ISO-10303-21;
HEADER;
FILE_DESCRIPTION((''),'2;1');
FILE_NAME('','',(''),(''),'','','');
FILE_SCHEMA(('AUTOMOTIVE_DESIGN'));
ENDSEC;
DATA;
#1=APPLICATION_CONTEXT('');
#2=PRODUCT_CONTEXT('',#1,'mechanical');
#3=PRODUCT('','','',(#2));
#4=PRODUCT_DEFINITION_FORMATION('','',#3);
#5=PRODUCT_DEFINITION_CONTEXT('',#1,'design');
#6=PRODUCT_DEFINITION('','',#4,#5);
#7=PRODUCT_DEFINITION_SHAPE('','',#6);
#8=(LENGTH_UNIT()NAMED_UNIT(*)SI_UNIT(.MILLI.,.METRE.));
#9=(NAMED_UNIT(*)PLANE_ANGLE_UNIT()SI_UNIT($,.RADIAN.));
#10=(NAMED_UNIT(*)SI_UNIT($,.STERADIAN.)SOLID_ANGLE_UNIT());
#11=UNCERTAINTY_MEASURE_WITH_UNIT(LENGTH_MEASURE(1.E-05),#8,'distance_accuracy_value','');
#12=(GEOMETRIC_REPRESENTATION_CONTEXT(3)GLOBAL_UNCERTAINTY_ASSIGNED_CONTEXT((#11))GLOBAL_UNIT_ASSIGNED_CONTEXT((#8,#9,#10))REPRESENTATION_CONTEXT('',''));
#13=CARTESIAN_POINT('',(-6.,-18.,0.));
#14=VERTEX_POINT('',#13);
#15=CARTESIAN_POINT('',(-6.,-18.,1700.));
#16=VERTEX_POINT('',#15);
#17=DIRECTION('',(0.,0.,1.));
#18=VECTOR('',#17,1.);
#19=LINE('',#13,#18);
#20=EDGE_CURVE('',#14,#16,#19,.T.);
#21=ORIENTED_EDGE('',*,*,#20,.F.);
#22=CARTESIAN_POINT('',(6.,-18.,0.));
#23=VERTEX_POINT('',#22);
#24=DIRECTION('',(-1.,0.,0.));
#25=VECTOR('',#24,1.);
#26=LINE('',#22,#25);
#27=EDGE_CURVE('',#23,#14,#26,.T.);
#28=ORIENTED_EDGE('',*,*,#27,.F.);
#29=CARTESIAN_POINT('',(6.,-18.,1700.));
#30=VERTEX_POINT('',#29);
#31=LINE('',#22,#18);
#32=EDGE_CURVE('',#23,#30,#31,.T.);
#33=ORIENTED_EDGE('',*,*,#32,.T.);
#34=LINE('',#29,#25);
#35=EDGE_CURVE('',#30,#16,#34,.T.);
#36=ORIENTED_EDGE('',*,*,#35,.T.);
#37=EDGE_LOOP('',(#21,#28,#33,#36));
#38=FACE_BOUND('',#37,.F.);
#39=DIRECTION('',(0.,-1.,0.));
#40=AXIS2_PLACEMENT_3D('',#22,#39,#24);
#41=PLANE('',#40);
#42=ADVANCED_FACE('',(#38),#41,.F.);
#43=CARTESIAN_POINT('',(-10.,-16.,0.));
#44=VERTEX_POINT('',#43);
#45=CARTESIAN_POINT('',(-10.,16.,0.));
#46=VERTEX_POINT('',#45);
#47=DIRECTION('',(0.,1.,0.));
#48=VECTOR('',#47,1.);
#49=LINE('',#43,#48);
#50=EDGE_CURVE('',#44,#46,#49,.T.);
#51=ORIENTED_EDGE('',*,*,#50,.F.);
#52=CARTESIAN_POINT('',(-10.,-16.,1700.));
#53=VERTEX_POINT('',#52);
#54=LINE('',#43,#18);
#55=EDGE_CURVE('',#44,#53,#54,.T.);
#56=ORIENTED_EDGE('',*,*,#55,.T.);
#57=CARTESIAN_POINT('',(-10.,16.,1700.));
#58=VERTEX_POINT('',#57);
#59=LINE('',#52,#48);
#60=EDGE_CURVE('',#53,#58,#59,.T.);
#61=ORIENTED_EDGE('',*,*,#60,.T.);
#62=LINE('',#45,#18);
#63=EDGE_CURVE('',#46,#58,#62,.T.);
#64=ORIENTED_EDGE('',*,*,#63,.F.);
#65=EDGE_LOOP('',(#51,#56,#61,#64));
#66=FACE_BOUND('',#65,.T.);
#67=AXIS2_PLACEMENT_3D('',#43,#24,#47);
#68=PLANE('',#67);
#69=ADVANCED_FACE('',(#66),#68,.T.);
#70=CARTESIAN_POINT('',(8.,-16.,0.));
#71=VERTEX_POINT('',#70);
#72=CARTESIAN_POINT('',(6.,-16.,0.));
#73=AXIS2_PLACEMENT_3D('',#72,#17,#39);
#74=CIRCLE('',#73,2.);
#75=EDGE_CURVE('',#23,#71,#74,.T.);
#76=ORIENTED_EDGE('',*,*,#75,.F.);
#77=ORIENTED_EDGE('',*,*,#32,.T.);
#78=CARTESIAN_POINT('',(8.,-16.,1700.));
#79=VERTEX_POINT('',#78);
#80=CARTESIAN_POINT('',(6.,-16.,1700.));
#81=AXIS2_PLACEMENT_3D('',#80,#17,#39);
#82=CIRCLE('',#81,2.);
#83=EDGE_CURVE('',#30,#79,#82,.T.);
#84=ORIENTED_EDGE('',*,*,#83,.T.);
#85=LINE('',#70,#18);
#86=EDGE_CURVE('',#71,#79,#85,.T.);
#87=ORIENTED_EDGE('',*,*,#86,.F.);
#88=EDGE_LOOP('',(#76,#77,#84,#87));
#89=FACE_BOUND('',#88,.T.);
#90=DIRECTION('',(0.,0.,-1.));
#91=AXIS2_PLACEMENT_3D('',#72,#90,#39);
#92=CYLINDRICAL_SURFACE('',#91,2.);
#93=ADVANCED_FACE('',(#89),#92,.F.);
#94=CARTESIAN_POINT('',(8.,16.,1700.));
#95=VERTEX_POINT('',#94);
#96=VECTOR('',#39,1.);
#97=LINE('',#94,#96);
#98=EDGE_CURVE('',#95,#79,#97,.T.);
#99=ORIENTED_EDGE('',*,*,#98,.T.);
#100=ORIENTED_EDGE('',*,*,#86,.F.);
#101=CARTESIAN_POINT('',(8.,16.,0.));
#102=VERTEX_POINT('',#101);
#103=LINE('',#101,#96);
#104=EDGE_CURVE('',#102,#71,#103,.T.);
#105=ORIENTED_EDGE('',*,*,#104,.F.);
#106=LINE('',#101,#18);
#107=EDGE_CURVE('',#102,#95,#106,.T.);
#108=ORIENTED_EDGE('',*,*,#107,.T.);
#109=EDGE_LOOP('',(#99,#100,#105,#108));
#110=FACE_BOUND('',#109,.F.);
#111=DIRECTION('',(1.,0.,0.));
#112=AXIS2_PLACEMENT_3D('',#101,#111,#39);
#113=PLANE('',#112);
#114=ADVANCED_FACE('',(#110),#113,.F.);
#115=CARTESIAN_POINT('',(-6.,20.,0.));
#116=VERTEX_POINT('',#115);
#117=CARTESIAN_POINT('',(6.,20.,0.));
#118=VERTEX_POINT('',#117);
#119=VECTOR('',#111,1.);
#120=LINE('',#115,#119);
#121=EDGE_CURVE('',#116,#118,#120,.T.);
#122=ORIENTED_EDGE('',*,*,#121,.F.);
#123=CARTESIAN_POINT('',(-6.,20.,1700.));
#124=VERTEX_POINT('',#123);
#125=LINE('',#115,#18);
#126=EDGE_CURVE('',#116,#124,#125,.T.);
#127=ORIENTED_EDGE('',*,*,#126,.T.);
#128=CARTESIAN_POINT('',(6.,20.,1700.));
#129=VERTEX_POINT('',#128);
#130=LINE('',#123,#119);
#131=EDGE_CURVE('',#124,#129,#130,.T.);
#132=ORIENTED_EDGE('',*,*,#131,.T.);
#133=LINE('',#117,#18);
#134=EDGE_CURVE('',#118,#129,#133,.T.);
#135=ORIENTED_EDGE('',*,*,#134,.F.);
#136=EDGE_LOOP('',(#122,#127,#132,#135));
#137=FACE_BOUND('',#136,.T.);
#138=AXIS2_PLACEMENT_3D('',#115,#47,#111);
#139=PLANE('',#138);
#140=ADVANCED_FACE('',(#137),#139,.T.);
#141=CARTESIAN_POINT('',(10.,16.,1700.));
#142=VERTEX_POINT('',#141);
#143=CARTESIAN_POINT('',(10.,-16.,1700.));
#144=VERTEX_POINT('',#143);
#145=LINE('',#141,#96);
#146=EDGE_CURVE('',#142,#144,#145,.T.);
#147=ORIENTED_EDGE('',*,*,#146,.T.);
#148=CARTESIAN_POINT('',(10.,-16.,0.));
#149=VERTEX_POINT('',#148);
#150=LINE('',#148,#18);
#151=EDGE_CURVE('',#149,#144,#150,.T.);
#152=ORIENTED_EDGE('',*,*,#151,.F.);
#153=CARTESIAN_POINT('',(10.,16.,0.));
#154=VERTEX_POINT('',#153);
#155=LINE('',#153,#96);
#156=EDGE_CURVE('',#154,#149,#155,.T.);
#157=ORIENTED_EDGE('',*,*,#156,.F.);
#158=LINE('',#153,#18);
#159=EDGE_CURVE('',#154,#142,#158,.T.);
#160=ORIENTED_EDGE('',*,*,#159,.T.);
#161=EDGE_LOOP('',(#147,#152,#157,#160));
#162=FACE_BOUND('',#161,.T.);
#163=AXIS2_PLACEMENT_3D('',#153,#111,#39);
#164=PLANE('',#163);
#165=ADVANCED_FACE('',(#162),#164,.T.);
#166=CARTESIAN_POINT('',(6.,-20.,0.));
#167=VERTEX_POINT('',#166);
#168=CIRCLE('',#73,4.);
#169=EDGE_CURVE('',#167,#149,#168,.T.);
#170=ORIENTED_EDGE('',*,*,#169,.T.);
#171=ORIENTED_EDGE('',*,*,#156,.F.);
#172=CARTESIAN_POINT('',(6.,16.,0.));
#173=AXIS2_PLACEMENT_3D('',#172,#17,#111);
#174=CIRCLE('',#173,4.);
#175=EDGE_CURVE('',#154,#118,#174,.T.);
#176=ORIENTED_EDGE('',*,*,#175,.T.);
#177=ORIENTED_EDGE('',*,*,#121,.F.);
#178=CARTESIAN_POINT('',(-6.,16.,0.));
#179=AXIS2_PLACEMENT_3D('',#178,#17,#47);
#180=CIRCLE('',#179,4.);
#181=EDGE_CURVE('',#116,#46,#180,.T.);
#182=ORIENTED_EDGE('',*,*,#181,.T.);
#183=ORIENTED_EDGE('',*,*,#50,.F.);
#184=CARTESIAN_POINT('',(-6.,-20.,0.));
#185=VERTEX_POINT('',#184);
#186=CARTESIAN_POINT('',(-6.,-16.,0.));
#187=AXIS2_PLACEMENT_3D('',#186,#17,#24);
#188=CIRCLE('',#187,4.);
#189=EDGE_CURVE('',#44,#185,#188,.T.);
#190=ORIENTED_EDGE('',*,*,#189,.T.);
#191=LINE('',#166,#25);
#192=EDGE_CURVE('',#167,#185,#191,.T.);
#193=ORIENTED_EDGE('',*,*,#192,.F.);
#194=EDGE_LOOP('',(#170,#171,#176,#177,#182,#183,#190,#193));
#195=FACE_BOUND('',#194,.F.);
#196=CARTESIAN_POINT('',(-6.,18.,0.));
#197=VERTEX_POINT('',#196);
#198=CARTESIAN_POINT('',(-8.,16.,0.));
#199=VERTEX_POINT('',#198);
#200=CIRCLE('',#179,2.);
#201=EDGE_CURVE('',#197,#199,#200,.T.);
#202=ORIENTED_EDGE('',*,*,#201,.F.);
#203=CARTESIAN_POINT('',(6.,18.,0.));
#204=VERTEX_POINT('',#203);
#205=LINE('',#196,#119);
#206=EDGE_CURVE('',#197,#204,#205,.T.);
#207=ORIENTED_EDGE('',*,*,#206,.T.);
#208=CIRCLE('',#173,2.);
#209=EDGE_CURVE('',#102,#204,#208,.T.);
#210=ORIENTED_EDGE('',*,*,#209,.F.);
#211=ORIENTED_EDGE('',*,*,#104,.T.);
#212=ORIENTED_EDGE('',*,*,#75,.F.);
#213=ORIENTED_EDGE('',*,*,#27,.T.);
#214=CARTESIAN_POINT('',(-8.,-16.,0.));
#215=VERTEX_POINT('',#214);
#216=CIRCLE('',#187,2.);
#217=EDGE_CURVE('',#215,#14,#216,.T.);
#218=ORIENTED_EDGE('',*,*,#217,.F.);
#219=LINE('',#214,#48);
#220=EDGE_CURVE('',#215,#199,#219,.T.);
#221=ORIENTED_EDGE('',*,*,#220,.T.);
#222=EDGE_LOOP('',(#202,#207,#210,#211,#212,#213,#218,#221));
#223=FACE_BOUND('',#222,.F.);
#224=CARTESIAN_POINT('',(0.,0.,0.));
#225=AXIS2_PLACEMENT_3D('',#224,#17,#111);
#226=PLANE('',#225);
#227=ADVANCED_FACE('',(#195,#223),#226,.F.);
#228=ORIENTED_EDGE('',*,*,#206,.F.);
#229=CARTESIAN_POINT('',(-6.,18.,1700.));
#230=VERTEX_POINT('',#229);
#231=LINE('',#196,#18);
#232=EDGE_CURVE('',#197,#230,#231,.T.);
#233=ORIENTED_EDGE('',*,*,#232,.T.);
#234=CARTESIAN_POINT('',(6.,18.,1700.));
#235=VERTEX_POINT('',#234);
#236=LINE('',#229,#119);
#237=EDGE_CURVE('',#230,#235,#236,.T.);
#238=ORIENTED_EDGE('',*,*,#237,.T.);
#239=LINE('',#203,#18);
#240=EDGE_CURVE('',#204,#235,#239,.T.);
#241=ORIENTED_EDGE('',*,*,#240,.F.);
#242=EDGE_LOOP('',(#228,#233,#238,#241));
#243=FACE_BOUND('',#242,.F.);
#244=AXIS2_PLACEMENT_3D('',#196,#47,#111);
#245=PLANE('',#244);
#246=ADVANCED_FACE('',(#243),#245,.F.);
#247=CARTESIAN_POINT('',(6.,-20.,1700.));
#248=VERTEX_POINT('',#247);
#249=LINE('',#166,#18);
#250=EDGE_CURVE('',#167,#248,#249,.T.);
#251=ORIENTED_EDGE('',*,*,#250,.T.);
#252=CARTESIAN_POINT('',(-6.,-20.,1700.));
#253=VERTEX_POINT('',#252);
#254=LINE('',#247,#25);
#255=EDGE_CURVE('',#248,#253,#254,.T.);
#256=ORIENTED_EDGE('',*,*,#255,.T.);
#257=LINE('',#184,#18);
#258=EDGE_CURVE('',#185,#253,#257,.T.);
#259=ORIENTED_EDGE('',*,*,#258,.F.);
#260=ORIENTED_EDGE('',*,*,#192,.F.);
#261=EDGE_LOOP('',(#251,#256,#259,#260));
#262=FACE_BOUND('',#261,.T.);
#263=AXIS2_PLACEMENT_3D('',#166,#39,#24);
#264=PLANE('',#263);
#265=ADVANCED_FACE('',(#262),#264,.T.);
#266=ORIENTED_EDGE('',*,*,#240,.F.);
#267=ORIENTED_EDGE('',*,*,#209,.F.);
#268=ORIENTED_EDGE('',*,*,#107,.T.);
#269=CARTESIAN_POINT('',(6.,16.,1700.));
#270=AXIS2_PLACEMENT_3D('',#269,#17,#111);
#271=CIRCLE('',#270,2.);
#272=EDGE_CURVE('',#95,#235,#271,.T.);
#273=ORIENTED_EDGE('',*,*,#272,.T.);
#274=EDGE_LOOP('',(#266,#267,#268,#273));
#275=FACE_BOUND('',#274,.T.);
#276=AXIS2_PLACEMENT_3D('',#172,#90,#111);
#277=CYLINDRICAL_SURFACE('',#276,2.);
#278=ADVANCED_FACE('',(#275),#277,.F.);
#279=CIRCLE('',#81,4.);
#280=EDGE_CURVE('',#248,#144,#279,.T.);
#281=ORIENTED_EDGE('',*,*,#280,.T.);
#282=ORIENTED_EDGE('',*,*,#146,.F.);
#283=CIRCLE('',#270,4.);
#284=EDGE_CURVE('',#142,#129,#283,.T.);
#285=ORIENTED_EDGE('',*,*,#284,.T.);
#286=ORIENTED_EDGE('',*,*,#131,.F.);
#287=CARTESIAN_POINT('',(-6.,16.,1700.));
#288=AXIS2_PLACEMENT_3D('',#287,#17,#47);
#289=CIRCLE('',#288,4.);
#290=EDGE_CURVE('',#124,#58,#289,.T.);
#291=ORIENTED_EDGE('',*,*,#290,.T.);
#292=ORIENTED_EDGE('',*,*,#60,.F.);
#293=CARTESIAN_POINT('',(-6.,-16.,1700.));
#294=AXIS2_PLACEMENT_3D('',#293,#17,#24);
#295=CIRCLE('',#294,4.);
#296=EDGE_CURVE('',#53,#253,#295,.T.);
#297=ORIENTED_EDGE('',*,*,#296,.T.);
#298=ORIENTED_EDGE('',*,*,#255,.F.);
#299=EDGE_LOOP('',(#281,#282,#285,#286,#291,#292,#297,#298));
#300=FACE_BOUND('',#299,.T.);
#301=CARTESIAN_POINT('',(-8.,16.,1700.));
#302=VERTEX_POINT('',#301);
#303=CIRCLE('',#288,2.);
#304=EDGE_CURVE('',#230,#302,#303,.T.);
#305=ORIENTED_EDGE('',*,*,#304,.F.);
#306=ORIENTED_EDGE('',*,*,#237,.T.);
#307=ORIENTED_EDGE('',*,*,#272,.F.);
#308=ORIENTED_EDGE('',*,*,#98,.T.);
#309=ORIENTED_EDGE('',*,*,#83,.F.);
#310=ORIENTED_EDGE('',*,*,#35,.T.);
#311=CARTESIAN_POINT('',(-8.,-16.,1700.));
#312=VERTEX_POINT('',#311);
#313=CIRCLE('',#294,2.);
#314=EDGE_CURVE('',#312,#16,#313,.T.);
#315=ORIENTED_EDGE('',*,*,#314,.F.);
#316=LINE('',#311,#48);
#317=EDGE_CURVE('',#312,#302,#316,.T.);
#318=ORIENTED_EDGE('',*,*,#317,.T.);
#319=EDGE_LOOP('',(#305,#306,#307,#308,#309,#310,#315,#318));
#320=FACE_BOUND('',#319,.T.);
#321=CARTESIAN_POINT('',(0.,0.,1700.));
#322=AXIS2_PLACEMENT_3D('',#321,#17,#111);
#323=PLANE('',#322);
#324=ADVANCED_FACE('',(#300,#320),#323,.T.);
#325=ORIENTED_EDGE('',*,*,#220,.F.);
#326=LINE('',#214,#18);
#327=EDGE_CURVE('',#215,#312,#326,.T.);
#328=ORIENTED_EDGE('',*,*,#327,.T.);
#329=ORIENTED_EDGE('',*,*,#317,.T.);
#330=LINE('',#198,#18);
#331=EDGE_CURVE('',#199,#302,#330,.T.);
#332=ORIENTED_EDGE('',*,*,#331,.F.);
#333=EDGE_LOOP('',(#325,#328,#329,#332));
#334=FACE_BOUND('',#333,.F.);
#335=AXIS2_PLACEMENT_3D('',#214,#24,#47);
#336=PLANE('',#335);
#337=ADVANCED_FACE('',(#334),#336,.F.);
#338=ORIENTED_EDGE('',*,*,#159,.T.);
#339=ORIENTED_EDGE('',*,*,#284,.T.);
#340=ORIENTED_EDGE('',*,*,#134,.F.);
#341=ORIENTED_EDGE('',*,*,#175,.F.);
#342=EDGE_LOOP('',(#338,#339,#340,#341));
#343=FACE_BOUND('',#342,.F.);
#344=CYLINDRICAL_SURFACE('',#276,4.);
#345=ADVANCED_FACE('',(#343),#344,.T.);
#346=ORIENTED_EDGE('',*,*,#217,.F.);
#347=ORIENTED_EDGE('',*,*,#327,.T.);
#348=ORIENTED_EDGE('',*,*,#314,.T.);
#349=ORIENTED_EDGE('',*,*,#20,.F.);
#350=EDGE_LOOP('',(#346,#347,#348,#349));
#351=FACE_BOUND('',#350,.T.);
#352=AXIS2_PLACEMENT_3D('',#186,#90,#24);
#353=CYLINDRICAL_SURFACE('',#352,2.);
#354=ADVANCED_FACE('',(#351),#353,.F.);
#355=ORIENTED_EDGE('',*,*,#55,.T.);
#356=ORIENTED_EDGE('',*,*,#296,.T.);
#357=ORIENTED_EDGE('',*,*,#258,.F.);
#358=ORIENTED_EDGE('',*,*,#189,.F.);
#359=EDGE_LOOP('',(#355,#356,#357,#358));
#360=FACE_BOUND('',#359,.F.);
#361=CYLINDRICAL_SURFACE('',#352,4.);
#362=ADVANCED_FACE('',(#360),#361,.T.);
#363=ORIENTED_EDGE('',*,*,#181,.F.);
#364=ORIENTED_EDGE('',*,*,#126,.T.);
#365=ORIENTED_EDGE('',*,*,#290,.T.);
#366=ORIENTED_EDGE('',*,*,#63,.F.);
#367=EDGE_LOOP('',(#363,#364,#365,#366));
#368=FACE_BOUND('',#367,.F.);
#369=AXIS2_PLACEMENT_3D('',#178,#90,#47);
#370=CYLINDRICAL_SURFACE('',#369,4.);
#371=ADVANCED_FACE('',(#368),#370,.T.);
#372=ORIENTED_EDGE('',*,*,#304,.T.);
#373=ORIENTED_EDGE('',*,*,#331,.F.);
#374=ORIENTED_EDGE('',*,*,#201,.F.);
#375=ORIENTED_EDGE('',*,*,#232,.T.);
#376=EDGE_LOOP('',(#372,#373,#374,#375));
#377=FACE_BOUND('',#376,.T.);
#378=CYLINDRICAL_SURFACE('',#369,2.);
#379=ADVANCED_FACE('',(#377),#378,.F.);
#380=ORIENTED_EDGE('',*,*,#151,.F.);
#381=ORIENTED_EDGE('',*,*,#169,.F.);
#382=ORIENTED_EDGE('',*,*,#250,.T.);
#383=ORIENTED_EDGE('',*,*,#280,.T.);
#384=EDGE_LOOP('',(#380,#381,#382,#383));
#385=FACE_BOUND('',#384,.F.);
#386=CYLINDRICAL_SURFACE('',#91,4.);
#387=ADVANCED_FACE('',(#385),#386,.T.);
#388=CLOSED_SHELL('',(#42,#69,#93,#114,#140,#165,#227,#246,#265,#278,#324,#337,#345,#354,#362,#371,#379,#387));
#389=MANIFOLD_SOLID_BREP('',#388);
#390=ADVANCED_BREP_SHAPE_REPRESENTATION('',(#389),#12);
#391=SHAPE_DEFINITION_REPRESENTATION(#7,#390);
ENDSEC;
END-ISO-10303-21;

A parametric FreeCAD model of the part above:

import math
import FreeCAD as App
import Part
import Sketcher
from FreeCAD import Vector

doc = App.newDocument("Part")
body = doc.addObject("PartDesign::Body", "Body")

# Sketch on XY plane
sketch1 = body.newObject("Sketcher::SketchObject", "Sketch")
sketch1.AttachmentSupport = (doc.getObject("XY_Plane"), [""])
sketch1.MapMode = "FlatFace"
sketch1.addGeometry([
    Part.LineSegment(Vector(-10, 16, 0), Vector(-10, -16, 0)),  # 0
    Part.ArcOfCircle(Part.Circle(Vector(-6, -16, 0), Vector(0, 0, 1), 4), math.radians(180), math.radians(270)),  # 1
    Part.LineSegment(Vector(-6, -20, 0), Vector(6, -20, 0)),  # 2
    Part.ArcOfCircle(Part.Circle(Vector(6, -16, 0), Vector(0, 0, 1), 4), math.radians(-90), math.radians(0)),  # 3
    Part.LineSegment(Vector(10, -16, 0), Vector(10, 16, 0)),  # 4
    Part.ArcOfCircle(Part.Circle(Vector(6, 16, 0), Vector(0, 0, 1), 4), math.radians(0), math.radians(90)),  # 5
    Part.LineSegment(Vector(6, 20, 0), Vector(-6, 20, 0)),  # 6
    Part.ArcOfCircle(Part.Circle(Vector(-6, 16, 0), Vector(0, 0, 1), 4), math.radians(90), math.radians(180)),  # 7
    Part.ArcOfCircle(Part.Circle(Vector(-6, 16, 0), Vector(0, 0, 1), 2), math.radians(90), math.radians(180)),  # 8
    Part.LineSegment(Vector(-6, 18, 0), Vector(6, 18, 0)),  # 9
    Part.ArcOfCircle(Part.Circle(Vector(6, 16, 0), Vector(0, 0, 1), 2), math.radians(0), math.radians(90)),  # 10
    Part.LineSegment(Vector(8, 16, 0), Vector(8, -16, 0)),  # 11
    Part.ArcOfCircle(Part.Circle(Vector(6, -16, 0), Vector(0, 0, 1), 2), math.radians(-90), math.radians(0)),  # 12
    Part.LineSegment(Vector(6, -18, 0), Vector(-6, -18, 0)),  # 13
    Part.ArcOfCircle(Part.Circle(Vector(-6, -16, 0), Vector(0, 0, 1), 2), math.radians(180), math.radians(270)),  # 14
    Part.LineSegment(Vector(-8, -16, 0), Vector(-8, 16, 0)),  # 15
], False)
sketch1.addConstraint([
    Sketcher.Constraint("Tangent", 0, 2, 1, 1),
    Sketcher.Constraint("Tangent", 1, 2, 2, 1),
    Sketcher.Constraint("Tangent", 2, 2, 3, 1),
    Sketcher.Constraint("Tangent", 3, 2, 4, 1),
    Sketcher.Constraint("Tangent", 4, 2, 5, 1),
    Sketcher.Constraint("Tangent", 5, 2, 6, 1),
    Sketcher.Constraint("Tangent", 6, 2, 7, 1),
    Sketcher.Constraint("Tangent", 7, 2, 0, 1),
    Sketcher.Constraint("Tangent", 8, 1, 9, 1),
    Sketcher.Constraint("Tangent", 9, 2, 10, 2),
    Sketcher.Constraint("Tangent", 10, 1, 11, 1),
    Sketcher.Constraint("Tangent", 11, 2, 12, 2),
    Sketcher.Constraint("Tangent", 12, 1, 13, 1),
    Sketcher.Constraint("Tangent", 13, 2, 14, 2),
    Sketcher.Constraint("Tangent", 14, 1, 15, 1),
    Sketcher.Constraint("Tangent", 15, 2, 8, 2),
    Sketcher.Constraint("Vertical", 0),
    Sketcher.Constraint("Horizontal", 2),
    Sketcher.Constraint("Vertical", 4),
    Sketcher.Constraint("Horizontal", 6),
    Sketcher.Constraint("Horizontal", 9),
    Sketcher.Constraint("Vertical", 11),
    Sketcher.Constraint("Horizontal", 13),
    Sketcher.Constraint("Vertical", 15),
    Sketcher.Constraint("Coincident", 8, 3, 7, 3),
    Sketcher.Constraint("Coincident", 10, 3, 5, 3),
    Sketcher.Constraint("Coincident", 12, 3, 3, 3),
    Sketcher.Constraint("Equal", 1, 3),
    Sketcher.Constraint("Equal", 3, 5),
    Sketcher.Constraint("Equal", 5, 7),
    Sketcher.Constraint("Equal", 12, 14),
    Sketcher.Constraint("Symmetric", 1, 3, 5, 3, -1, 1),
    Sketcher.Constraint("Radius", 1, 4.0),
    Sketcher.Constraint("Radius", 8, 2.0),
    Sketcher.Constraint("DistanceX", 0, 2, -1, 1, 10.0),
    Sketcher.Constraint("DistanceY", 1, 2, -1, 1, 20.0),
])
pad1 = body.newObject("PartDesign::Pad", "Pad")
pad1.Profile = sketch1
pad1.Length = 1700

doc.recompute()
